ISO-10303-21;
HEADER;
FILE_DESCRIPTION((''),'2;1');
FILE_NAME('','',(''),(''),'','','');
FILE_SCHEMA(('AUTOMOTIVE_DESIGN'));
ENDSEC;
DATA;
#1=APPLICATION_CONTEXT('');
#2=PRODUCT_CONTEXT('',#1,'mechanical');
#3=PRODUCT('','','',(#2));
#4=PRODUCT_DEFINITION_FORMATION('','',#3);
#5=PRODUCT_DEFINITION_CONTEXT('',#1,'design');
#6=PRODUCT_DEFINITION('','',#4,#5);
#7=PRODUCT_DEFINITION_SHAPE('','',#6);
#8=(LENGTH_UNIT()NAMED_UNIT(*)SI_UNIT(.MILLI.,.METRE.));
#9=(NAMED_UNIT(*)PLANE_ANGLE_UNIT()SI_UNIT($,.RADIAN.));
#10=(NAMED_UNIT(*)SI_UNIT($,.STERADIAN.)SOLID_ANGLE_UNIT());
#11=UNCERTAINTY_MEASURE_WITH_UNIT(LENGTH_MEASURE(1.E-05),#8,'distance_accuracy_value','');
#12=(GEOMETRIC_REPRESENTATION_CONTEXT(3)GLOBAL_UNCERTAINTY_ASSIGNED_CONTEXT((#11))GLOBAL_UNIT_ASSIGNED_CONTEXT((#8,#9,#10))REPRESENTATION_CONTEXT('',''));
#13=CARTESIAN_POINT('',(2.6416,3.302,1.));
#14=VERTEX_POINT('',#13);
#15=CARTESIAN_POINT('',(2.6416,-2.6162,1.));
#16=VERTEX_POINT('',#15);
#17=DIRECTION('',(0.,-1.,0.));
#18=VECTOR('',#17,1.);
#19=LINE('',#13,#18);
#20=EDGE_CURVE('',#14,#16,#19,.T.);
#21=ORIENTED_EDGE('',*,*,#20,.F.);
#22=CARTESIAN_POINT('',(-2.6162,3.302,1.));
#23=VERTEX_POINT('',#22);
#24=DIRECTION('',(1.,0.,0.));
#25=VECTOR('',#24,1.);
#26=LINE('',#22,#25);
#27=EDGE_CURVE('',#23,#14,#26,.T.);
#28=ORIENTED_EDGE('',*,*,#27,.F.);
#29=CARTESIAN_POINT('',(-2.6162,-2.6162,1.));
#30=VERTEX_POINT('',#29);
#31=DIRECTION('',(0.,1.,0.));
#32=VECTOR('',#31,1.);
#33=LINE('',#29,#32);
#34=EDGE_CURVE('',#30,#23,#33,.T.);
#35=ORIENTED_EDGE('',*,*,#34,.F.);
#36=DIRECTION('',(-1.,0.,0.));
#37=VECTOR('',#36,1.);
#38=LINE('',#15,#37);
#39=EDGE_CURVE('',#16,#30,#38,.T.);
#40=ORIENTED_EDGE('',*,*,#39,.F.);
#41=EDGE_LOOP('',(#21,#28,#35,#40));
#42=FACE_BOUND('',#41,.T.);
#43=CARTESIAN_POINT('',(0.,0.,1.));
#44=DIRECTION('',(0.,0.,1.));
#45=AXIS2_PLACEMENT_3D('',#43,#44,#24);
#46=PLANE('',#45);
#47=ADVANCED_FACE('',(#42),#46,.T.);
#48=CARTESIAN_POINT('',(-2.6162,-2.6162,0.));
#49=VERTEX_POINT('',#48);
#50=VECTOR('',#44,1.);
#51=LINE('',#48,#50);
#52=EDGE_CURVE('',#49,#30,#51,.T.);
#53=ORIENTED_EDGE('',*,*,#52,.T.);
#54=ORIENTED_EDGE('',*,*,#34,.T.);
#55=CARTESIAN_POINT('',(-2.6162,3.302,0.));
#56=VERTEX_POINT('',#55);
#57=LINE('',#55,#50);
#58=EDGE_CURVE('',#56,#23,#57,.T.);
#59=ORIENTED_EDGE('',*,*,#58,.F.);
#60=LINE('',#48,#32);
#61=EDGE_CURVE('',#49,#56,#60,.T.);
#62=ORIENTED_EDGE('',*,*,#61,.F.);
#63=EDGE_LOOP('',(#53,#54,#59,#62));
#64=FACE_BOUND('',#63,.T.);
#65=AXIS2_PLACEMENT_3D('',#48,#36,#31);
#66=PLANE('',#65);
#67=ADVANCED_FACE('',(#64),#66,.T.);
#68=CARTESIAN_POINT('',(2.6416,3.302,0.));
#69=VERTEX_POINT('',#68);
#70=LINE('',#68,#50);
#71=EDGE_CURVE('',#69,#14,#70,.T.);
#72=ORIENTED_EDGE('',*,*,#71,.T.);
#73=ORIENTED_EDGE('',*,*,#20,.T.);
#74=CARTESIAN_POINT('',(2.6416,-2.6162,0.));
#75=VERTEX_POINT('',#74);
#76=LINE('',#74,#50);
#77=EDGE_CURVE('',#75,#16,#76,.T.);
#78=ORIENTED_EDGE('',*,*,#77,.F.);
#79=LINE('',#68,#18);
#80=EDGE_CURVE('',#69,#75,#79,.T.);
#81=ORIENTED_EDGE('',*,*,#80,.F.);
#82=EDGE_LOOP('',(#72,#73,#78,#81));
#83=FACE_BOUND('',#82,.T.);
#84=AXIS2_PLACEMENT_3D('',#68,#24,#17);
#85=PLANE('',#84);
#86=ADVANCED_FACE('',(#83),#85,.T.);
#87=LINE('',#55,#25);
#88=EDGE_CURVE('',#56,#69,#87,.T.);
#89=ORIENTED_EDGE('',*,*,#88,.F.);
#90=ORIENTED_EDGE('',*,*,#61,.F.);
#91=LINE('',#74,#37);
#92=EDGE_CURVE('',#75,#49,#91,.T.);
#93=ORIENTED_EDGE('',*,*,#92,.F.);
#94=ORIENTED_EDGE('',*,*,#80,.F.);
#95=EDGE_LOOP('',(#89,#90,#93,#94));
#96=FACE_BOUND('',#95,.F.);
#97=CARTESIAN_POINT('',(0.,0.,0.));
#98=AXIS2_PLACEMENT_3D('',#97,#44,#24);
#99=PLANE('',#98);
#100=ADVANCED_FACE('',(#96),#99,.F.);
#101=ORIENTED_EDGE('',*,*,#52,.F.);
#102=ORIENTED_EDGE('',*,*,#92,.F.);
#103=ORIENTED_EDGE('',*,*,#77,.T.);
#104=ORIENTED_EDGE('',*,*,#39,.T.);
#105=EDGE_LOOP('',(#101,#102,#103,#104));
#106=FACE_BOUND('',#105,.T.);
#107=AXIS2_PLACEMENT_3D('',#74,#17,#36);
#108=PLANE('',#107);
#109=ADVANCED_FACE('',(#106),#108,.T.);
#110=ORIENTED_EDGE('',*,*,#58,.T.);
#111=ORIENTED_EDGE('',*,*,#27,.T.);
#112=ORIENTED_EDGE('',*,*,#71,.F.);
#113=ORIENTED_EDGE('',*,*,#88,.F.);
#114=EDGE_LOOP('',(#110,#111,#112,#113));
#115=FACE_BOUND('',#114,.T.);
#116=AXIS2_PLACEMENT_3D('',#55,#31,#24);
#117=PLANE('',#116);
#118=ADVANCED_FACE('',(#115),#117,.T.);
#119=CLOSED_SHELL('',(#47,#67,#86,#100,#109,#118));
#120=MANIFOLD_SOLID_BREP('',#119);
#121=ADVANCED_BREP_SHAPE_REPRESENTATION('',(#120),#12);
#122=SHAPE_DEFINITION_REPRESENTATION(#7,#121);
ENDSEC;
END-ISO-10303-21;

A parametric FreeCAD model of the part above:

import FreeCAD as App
import Part
import Sketcher

V = App.Vector
Q = App.Units.Quantity

doc = App.newDocument("Part")
body = doc.addObject("PartDesign::Body", "Body")

# Sketch on XY plane
sketch1 = body.newObject("Sketcher::SketchObject", "Sketch")
sketch1.AttachmentSupport = (doc.getObject("XY_Plane"), [""])
sketch1.MapMode = "FlatFace"
sketch1.addGeometry([
    Part.LineSegment(V(3, 3, 0), V(-3, 3, 0)),
    Part.LineSegment(V(-3, 3, 0), V(-3, -3, 0)),
    Part.LineSegment(V(-3, -3, 0), V(3, -3, 0)),
    Part.LineSegment(V(3, -3, 0), V(3, 3, 0)),
], False)
sketch1.addConstraint([
    Sketcher.Constraint("Coincident", 0, 2, 1, 1),
    Sketcher.Constraint("Coincident", 1, 2, 2, 1),
    Sketcher.Constraint("Coincident", 2, 2, 3, 1),
    Sketcher.Constraint("Coincident", 3, 2, 0, 1),
    Sketcher.Constraint("Horizontal", 0),
    Sketcher.Constraint("Vertical", 1),
    Sketcher.Constraint("Horizontal", 2),
    Sketcher.Constraint("Vertical", 3),
    Sketcher.Constraint("DistanceX", 0, 2, 0, 1, Q("0.207 in")),
    Sketcher.Constraint("DistanceY", 1, 2, 1, 1, Q("0.233 in")),
    Sketcher.Constraint("DistanceY", -1, 1, 0, 2, Q("0.13 in")),
    Sketcher.Constraint("DistanceX", 0, 2, -1, 1, Q("0.103 in")),
])
pad1 = body.newObject("PartDesign::Pad", "Pad")
pad1.Profile = sketch1
pad1.Length = 1

doc.recompute()
